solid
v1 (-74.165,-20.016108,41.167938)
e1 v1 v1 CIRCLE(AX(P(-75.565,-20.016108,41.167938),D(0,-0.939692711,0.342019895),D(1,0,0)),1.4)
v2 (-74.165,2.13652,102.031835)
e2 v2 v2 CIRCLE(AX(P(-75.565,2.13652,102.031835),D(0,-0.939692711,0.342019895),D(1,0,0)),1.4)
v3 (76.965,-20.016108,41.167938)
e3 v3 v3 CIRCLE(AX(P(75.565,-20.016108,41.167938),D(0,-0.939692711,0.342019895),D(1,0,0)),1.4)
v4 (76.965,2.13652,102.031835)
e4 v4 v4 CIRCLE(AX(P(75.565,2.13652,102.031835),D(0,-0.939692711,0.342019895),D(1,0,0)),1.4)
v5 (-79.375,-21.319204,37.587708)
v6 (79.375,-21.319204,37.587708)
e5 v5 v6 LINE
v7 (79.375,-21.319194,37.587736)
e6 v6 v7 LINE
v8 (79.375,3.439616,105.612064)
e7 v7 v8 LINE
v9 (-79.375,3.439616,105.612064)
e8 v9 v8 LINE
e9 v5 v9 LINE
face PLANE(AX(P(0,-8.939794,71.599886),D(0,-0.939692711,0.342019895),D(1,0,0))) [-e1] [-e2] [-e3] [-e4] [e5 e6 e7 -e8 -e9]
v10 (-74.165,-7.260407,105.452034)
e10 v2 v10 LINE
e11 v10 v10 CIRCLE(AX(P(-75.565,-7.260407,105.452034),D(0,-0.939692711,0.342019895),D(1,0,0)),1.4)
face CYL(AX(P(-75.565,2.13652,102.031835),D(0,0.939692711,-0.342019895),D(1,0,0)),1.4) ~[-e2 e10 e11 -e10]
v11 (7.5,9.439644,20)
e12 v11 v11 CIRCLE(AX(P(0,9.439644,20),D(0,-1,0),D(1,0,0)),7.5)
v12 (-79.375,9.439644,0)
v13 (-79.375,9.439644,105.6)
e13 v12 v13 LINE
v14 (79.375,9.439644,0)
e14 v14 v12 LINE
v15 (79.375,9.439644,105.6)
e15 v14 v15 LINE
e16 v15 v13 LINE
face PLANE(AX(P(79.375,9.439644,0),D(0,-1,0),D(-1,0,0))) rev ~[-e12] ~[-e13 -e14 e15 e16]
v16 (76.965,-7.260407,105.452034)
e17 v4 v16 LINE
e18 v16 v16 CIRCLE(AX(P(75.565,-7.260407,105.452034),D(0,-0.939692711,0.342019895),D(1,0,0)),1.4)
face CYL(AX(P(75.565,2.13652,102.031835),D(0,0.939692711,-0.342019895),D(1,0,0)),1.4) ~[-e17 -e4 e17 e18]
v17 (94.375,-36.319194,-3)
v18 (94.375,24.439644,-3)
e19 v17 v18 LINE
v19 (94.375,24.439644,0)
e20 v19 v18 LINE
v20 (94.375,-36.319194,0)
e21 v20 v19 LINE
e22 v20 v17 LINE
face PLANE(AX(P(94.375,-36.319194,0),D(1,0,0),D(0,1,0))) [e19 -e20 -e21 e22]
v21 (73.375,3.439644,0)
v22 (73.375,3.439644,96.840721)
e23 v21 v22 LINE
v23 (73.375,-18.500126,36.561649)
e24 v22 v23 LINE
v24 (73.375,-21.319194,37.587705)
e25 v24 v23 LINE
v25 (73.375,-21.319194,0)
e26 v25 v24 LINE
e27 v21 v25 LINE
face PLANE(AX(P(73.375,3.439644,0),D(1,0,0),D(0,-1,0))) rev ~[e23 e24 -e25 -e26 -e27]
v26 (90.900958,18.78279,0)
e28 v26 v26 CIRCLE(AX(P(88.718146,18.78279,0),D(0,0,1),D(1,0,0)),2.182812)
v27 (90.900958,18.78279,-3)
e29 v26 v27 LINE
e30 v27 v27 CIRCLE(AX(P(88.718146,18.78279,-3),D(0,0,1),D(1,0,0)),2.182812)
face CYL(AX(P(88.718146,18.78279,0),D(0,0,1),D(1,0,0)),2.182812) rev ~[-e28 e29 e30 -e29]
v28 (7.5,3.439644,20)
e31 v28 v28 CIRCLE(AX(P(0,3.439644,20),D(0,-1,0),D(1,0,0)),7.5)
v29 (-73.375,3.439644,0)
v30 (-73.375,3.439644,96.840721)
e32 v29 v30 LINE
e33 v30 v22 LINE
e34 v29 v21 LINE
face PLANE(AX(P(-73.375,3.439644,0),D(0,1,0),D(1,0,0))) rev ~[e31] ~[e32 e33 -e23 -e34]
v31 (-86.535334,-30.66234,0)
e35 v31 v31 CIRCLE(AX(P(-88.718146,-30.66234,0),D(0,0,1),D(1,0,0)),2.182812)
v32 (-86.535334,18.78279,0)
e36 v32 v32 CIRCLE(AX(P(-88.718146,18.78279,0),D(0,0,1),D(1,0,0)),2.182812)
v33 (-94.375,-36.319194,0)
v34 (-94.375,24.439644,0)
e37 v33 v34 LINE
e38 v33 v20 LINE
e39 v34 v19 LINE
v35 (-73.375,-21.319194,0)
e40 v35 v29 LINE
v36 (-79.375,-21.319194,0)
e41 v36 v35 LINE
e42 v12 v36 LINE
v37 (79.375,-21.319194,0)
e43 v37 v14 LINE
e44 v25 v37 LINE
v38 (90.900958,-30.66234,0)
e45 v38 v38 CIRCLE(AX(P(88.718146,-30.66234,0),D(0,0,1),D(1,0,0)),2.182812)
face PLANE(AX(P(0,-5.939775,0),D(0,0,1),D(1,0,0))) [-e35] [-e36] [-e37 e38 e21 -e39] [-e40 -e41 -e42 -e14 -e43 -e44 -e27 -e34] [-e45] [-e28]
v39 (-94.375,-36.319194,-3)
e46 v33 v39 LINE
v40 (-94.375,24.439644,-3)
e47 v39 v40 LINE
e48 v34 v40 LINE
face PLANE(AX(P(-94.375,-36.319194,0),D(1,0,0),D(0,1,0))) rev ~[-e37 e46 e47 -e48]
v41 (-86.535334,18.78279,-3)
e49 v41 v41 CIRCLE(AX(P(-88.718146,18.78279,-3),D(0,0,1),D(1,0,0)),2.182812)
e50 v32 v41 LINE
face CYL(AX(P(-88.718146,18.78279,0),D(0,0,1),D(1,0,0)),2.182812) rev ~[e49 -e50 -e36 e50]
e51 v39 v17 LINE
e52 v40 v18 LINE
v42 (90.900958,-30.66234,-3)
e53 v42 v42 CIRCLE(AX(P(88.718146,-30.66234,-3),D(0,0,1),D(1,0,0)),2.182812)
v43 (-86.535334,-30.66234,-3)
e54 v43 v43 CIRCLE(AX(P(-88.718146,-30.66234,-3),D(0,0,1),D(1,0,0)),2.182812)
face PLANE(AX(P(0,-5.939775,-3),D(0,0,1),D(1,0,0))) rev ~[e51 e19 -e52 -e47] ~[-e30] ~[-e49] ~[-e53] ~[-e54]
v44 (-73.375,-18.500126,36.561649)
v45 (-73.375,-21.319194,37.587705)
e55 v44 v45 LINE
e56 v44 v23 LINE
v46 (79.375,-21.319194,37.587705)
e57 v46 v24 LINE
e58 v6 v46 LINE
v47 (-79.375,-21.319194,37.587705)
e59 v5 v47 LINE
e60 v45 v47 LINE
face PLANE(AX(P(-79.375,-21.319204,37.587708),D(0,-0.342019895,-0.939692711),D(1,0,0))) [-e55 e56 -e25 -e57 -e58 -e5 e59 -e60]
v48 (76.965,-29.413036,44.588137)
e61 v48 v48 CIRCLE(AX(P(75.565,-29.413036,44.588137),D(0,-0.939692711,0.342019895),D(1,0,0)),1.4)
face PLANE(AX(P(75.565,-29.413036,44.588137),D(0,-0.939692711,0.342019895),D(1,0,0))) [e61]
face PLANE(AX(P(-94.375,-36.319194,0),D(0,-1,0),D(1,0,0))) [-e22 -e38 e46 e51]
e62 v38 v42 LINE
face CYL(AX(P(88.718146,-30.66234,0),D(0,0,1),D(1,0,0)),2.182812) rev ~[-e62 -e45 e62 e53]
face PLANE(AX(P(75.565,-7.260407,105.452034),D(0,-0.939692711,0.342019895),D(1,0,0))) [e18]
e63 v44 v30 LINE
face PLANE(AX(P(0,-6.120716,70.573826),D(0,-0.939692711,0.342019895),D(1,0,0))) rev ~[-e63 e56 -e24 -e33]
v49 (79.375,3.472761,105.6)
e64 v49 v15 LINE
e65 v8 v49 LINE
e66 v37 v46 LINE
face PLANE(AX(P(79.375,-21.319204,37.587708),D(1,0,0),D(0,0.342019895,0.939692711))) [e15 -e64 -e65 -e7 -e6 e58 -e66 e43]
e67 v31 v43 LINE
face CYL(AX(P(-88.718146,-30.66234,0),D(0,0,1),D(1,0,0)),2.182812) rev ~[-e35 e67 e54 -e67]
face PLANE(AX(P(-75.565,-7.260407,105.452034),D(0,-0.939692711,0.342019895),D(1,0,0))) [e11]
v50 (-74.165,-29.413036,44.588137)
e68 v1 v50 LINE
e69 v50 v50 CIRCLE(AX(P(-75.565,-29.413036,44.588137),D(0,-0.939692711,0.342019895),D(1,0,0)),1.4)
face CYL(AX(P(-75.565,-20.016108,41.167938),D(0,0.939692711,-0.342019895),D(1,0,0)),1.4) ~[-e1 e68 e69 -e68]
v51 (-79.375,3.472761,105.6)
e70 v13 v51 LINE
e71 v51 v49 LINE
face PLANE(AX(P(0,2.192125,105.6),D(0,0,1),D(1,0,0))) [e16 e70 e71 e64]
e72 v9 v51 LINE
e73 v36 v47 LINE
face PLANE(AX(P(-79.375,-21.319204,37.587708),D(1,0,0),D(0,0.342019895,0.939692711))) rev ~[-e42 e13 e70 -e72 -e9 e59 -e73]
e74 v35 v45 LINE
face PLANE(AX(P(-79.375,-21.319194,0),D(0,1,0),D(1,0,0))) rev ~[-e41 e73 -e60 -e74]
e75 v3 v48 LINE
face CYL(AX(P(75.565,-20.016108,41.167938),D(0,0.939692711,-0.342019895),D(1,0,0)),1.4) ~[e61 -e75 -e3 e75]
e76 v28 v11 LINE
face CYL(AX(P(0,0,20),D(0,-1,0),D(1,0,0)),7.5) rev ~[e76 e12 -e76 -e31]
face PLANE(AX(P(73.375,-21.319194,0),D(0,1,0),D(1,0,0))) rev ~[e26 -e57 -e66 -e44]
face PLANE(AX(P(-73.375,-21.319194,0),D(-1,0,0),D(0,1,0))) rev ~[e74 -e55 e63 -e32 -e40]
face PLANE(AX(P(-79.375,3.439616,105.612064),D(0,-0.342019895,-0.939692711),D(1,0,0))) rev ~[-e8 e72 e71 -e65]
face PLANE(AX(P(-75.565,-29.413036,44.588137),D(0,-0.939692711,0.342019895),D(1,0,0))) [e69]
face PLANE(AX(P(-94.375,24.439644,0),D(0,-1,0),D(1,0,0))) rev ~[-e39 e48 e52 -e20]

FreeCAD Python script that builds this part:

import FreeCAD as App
import Part
import Sketcher
Q = App.Units.Quantity

doc = App.newDocument("Part")
params = doc.addObject("Spreadsheet::Sheet", "Params")
for row, (alias, value) in enumerate([
    ("sketch1_width", "188.75 mm"),
    ("pad1_length", "3 mm"),
    ("sketch2_width", "6 mm"),
    ("sketch2_width2", "158.75 mm"),
    ("pad2_length", "105.6 mm"),
    ("pocket1_length", "200 mm"),
    ("sketch4_width", "158.75 mm"),
    ("sketch4_height", "72.39 mm"),
    ("pad3_length", "3 mm"),
    ("sketch5_diameter", "2.8 mm"),
    ("pad4_length", "10 mm"),
    ("sketch6_diameter", "15 mm"),
], start=1):
    params.set(f"A{row}", alias)
    params.set(f"B{row}", "=" + value)
    params.setAlias(f"B{row}", alias)

body = doc.addObject("PartDesign::Body", "Body")

sketch1 = doc.addObject("Sketcher::SketchObject", "Sketch")
body.addObject(sketch1)
sketch1.AttachmentSupport = (doc.XY_Plane, [""])
sketch1.MapMode = "FlatFace"
sketch1.addGeometry([
    Part.LineSegment(App.Vector(-94.4, 24.4, 0), App.Vector(-94.4, -36.3, 0)),
    Part.LineSegment(App.Vector(-94.4, -36.3, 0), App.Vector(94.4, -36.3, 0)),
    Part.LineSegment(App.Vector(94.4, -36.3, 0), App.Vector(94.4, 24.4, 0)),
    Part.LineSegment(App.Vector(94.4, 24.4, 0), App.Vector(-94.4, 24.4, 0)),
    Part.Circle(App.Vector(-88.7, -30.7, 0), App.Vector(0, 0, 1), 2.2),
    Part.Circle(App.Vector(88.7, -30.7, 0), App.Vector(0, 0, 1), 2.2),
    Part.Circle(App.Vector(-88.7, 18.8, 0), App.Vector(0, 0, 1), 2.2),
    Part.Circle(App.Vector(88.7, 18.8, 0), App.Vector(0, 0, 1), 2.2),
], False)
sketch1.addConstraint([
    Sketcher.Constraint("Coincident", 0, 2, 1, 1),
    Sketcher.Constraint("Coincident", 1, 2, 2, 1),
    Sketcher.Constraint("Coincident", 2, 2, 3, 1),
    Sketcher.Constraint("Coincident", 3, 2, 0, 1),
    Sketcher.Constraint("Vertical", 0),
    Sketcher.Constraint("Horizontal", 1),
    Sketcher.Constraint("Vertical", 2),
    Sketcher.Constraint("Horizontal", 3),
    Sketcher.Constraint("Equal", 4, 5),
    Sketcher.Constraint("Equal", 5, 6),
    Sketcher.Constraint("Equal", 6, 7),
    Sketcher.Constraint("Symmetric", 4, 3, 5, 3, -2),
    Sketcher.Constraint("Symmetric", 6, 3, 7, 3, -2),
    Sketcher.Constraint("Vertical", 4, 3, 6, 3),
    Sketcher.Constraint("DistanceX", 1, 1, 1, 2, Q("188.75 mm")),
    Sketcher.Constraint("Diameter", 4, Q("4.365624 mm")),
    Sketcher.Constraint("DistanceX", 0, 2, -1, 1, Q("94.375 mm")),
    Sketcher.Constraint("DistanceY", 0, 2, 0, 1, Q("60.758838 mm")),
    Sketcher.Constraint("DistanceY", 4, 3, -1, 1, Q("30.66234 mm")),
    Sketcher.Constraint("DistanceY", -1, 1, 6, 3, Q("18.78279 mm")),
    Sketcher.Constraint("DistanceX", 4, 3, 5, 3, Q("177.436292 mm")),
    Sketcher.Constraint("DistanceY", 0, 2, -1, 1, Q("36.319194 mm")),
])
sketch1.setExpression("Constraints[14]", "Params.sketch1_width")
pad1 = doc.addObject("PartDesign::Pad", "Pad")
body.addObject(pad1)
pad1.Profile = sketch1
pad1.setExpression("Length", "Params.pad1_length")
pad1.Reversed = True

sketch2 = doc.addObject("Sketcher::SketchObject", "Sketch001")
body.addObject(sketch2)
sketch2.AttachmentSupport = (doc.XY_Plane, [""])
sketch2.MapMode = "FlatFace"
sketch2.addGeometry([
    Part.LineSegment(App.Vector(73, -21, 0), App.Vector(79, -21, 0)),
    Part.LineSegment(App.Vector(79, -21, 0), App.Vector(79, 9, 0)),
    Part.LineSegment(App.Vector(79, 9, 0), App.Vector(-79, 9, 0)),
    Part.LineSegment(App.Vector(-79, 9, 0), App.Vector(-79, -21, 0)),
    Part.LineSegment(App.Vector(-79, -21, 0), App.Vector(-73, -21, 0)),
    Part.LineSegment(App.Vector(-73, -21, 0), App.Vector(-73, 3, 0)),
    Part.LineSegment(App.Vector(-73, 3, 0), App.Vector(73, 3, 0)),
    Part.LineSegment(App.Vector(73, 3, 0), App.Vector(73, -21, 0)),
], False)
sketch2.addConstraint([
    Sketcher.Constraint("Coincident", 0, 2, 1, 1),
    Sketcher.Constraint("Coincident", 1, 2, 2, 1),
    Sketcher.Constraint("Coincident", 2, 2, 3, 1),
    Sketcher.Constraint("Coincident", 3, 2, 4, 1),
    Sketcher.Constraint("Coincident", 4, 2, 5, 1),
    Sketcher.Constraint("Coincident", 5, 2, 6, 1),
    Sketcher.Constraint("Coincident", 6, 2, 7, 1),
    Sketcher.Constraint("Coincident", 7, 2, 0, 1),
    Sketcher.Constraint("Horizontal", 0),
    Sketcher.Constraint("Vertical", 1),
    Sketcher.Constraint("Horizontal", 2),
    Sketcher.Constraint("Vertical", 3),
    Sketcher.Constraint("Horizontal", 4),
    Sketcher.Constraint("Vertical", 5),
    Sketcher.Constraint("Horizontal", 6),
    Sketcher.Constraint("Vertical", 7),
    Sketcher.Constraint("Symmetric", 0, 2, 3, 2, -2),
    Sketcher.Constraint("Equal", 0, 4),
    Sketcher.Constraint("DistanceX", 0, 1, 0, 2, Q("6 mm")),
    Sketcher.Constraint("DistanceY", 5, 2, 2, 2, Q("6 mm")),
    Sketcher.Constraint("DistanceX", 2, 2, 2, 1, Q("158.75 mm")),
    Sketcher.Constraint("DistanceY", 5, 1, 5, 2, Q("24.758838 mm")),
    Sketcher.Constraint("DistanceY", 0, 2, -1, 1, Q("21.319194 mm")),
])
sketch2.setExpression("Constraints[18]", "Params.sketch2_width")
sketch2.setExpression("Constraints[20]", "Params.sketch2_width2")
pad2 = doc.addObject("PartDesign::Pad", "Pad001")
body.addObject(pad2)
pad2.Profile = sketch2
pad2.setExpression("Length", "Params.pad2_length")

sketch3 = doc.addObject("Sketcher::SketchObject", "Sketch002")
body.addObject(sketch3)
sketch3.Placement = App.Placement(App.Vector(0, -35, 0), App.Rotation(App.Vector(1, 0, 0), App.Vector(0, 0.342019895, 0.939692711), App.Vector(0, -0.939692711, 0.342019895), "ZXY"))
sketch3.addGeometry([
    Part.LineSegment(App.Vector(-167, 276, 0), App.Vector(-167, 0, 0)),
    Part.LineSegment(App.Vector(-167, 0, 0), App.Vector(162, 0, 0)),
    Part.LineSegment(App.Vector(162, 0, 0), App.Vector(162, 276, 0)),
    Part.LineSegment(App.Vector(162, 276, 0), App.Vector(-167, 276, 0)),
], False)
sketch3.addConstraint([
    Sketcher.Constraint("Coincident", 0, 2, 1, 1),
    Sketcher.Constraint("Coincident", 1, 2, 2, 1),
    Sketcher.Constraint("Coincident", 2, 2, 3, 1),
    Sketcher.Constraint("Coincident", 3, 2, 0, 1),
    Sketcher.Constraint("Vertical", 0),
    Sketcher.Constraint("Horizontal", 1),
    Sketcher.Constraint("Vertical", 2),
    Sketcher.Constraint("Horizontal", 3),
    Sketcher.Constraint("PointOnObject", 0, 2, -1),
    Sketcher.Constraint("DistanceX", 1, 1, 1, 2, Q("328.820023 mm")),
    Sketcher.Constraint("DistanceY", 0, 2, 0, 1, Q("275.658927 mm")),
    Sketcher.Constraint("DistanceX", 0, 2, -1, 1, Q("167.036239 mm")),
])
pocket1 = doc.addObject("PartDesign::Pocket", "Pocket")
body.addObject(pocket1)
pocket1.Profile = sketch3
pocket1.setExpression("Length", "Params.pocket1_length")
pocket1.Reversed = True

sketch4 = doc.addObject("Sketcher::SketchObject", "Sketch003")
body.addObject(sketch4)
sketch4.Placement = App.Placement(App.Vector(0, -35, 0), App.Rotation(App.Vector(1, 0, 0), App.Vector(0, 0.342019895, 0.939692711), App.Vector(0, -0.939692711, 0.342019895), "ZXY"))
sketch4.addGeometry([
    Part.LineSegment(App.Vector(-79, 112, 0), App.Vector(-79, 40, 0)),
    Part.LineSegment(App.Vector(-79, 40, 0), App.Vector(79, 40, 0)),
    Part.LineSegment(App.Vector(79, 40, 0), App.Vector(79, 112, 0)),
    Part.LineSegment(App.Vector(79, 112, 0), App.Vector(-79, 112, 0)),
], False)
sketch4.addConstraint([
    Sketcher.Constraint("Coincident", 0, 2, 1, 1),
    Sketcher.Constraint("Coincident", 1, 2, 2, 1),
    Sketcher.Constraint("Coincident", 2, 2, 3, 1),
    Sketcher.Constraint("Coincident", 3, 2, 0, 1),
    Sketcher.Constraint("Vertical", 0),
    Sketcher.Constraint("Horizontal", 1),
    Sketcher.Constraint("Vertical", 2),
    Sketcher.Constraint("Horizontal", 3),
    Sketcher.Constraint("DistanceY", -1, 1, 0, 2, Q("40 mm")),
    Sketcher.Constraint("DistanceX", 1, 1, 1, 2, Q("158.75 mm")),
    Sketcher.Constraint("DistanceY", 0, 2, 0, 1, Q("72.39 mm")),
    Sketcher.Constraint("DistanceX", 0, 2, -1, 1, Q("79.375 mm")),
])
sketch4.setExpression("Constraints[9]", "Params.sketch4_width")
sketch4.setExpression("Constraints[10]", "Params.sketch4_height")
pad3 = doc.addObject("PartDesign::Pad", "Pad002")
body.addObject(pad3)
pad3.Profile = sketch4
pad3.setExpression("Length", "Params.pad3_length")
pad3.Reversed = True

sketch5 = doc.addObject("Sketcher::SketchObject", "Sketch004")
body.addObject(sketch5)
sketch5.Placement = App.Placement(App.Vector(0, -35, 0), App.Rotation(App.Vector(1, 0, 0), App.Vector(0, 0.342019895, 0.939692711), App.Vector(0, -0.939692711, 0.342019895), "ZXY"))
sketch5.addGeometry([
    Part.Circle(App.Vector(-75.6, 108.6, 0), App.Vector(0, 0, 1), 1.4),
    Part.Circle(App.Vector(75.6, 108.6, 0), App.Vector(0, 0, 1), 1.4),
    Part.Circle(App.Vector(75.6, 43.8, 0), App.Vector(0, 0, 1), 1.4),
    Part.Circle(App.Vector(-75.6, 43.8, 0), App.Vector(0, 0, 1), 1.4),
], False)
sketch5.addConstraint([
    Sketcher.Constraint("Equal", 0, 1),
    Sketcher.Constraint("Equal", 1, 2),
    Sketcher.Constraint("Equal", 2, 3),
    Sketcher.Constraint("Symmetric", 0, 3, 1, 3, -2),
    Sketcher.Constraint("Symmetric", 2, 3, 3, 3, -2),
    Sketcher.Constraint("Vertical", 1, 3, 2, 3),
    Sketcher.Constraint("Diameter", 0, Q("2.8 mm")),
    Sketcher.Constraint("DistanceY", -1, 1, 0, 3, Q("108.58 mm")),
    Sketcher.Constraint("DistanceY", -1, 1, 2, 3, Q("43.81 mm")),
    Sketcher.Constraint("DistanceX", 0, 3, 1, 3, Q("151.13 mm")),
])
sketch5.setExpression("Constraints[6]", "Params.sketch5_diameter")
pad4 = doc.addObject("PartDesign::Pad", "Pad003")
body.addObject(pad4)
pad4.Profile = sketch5
pad4.setExpression("Length", "Params.pad4_length")

sketch6 = doc.addObject("Sketcher::SketchObject", "Sketch005")
body.addObject(sketch6)
sketch6.AttachmentSupport = (doc.XZ_Plane, [""])
sketch6.MapMode = "FlatFace"
sketch6.addGeometry(Part.Circle(App.Vector(0, 20, 0), App.Vector(0, 0, 1), 8), False)
sketch6.addConstraint([
    Sketcher.Constraint("PointOnObject", 0, 3, -2),
    Sketcher.Constraint("Diameter", 0, Q("15 mm")),
    Sketcher.Constraint("DistanceY", -1, 1, 0, 3, Q("20 mm")),
])
sketch6.setExpression("Constraints[1]", "Params.sketch6_diameter")
pocket2 = doc.addObject("PartDesign::Pocket", "Pocket001")
body.addObject(pocket2)
pocket2.Profile = sketch6
pocket2.Type = "ThroughAll"

doc.recompute()
